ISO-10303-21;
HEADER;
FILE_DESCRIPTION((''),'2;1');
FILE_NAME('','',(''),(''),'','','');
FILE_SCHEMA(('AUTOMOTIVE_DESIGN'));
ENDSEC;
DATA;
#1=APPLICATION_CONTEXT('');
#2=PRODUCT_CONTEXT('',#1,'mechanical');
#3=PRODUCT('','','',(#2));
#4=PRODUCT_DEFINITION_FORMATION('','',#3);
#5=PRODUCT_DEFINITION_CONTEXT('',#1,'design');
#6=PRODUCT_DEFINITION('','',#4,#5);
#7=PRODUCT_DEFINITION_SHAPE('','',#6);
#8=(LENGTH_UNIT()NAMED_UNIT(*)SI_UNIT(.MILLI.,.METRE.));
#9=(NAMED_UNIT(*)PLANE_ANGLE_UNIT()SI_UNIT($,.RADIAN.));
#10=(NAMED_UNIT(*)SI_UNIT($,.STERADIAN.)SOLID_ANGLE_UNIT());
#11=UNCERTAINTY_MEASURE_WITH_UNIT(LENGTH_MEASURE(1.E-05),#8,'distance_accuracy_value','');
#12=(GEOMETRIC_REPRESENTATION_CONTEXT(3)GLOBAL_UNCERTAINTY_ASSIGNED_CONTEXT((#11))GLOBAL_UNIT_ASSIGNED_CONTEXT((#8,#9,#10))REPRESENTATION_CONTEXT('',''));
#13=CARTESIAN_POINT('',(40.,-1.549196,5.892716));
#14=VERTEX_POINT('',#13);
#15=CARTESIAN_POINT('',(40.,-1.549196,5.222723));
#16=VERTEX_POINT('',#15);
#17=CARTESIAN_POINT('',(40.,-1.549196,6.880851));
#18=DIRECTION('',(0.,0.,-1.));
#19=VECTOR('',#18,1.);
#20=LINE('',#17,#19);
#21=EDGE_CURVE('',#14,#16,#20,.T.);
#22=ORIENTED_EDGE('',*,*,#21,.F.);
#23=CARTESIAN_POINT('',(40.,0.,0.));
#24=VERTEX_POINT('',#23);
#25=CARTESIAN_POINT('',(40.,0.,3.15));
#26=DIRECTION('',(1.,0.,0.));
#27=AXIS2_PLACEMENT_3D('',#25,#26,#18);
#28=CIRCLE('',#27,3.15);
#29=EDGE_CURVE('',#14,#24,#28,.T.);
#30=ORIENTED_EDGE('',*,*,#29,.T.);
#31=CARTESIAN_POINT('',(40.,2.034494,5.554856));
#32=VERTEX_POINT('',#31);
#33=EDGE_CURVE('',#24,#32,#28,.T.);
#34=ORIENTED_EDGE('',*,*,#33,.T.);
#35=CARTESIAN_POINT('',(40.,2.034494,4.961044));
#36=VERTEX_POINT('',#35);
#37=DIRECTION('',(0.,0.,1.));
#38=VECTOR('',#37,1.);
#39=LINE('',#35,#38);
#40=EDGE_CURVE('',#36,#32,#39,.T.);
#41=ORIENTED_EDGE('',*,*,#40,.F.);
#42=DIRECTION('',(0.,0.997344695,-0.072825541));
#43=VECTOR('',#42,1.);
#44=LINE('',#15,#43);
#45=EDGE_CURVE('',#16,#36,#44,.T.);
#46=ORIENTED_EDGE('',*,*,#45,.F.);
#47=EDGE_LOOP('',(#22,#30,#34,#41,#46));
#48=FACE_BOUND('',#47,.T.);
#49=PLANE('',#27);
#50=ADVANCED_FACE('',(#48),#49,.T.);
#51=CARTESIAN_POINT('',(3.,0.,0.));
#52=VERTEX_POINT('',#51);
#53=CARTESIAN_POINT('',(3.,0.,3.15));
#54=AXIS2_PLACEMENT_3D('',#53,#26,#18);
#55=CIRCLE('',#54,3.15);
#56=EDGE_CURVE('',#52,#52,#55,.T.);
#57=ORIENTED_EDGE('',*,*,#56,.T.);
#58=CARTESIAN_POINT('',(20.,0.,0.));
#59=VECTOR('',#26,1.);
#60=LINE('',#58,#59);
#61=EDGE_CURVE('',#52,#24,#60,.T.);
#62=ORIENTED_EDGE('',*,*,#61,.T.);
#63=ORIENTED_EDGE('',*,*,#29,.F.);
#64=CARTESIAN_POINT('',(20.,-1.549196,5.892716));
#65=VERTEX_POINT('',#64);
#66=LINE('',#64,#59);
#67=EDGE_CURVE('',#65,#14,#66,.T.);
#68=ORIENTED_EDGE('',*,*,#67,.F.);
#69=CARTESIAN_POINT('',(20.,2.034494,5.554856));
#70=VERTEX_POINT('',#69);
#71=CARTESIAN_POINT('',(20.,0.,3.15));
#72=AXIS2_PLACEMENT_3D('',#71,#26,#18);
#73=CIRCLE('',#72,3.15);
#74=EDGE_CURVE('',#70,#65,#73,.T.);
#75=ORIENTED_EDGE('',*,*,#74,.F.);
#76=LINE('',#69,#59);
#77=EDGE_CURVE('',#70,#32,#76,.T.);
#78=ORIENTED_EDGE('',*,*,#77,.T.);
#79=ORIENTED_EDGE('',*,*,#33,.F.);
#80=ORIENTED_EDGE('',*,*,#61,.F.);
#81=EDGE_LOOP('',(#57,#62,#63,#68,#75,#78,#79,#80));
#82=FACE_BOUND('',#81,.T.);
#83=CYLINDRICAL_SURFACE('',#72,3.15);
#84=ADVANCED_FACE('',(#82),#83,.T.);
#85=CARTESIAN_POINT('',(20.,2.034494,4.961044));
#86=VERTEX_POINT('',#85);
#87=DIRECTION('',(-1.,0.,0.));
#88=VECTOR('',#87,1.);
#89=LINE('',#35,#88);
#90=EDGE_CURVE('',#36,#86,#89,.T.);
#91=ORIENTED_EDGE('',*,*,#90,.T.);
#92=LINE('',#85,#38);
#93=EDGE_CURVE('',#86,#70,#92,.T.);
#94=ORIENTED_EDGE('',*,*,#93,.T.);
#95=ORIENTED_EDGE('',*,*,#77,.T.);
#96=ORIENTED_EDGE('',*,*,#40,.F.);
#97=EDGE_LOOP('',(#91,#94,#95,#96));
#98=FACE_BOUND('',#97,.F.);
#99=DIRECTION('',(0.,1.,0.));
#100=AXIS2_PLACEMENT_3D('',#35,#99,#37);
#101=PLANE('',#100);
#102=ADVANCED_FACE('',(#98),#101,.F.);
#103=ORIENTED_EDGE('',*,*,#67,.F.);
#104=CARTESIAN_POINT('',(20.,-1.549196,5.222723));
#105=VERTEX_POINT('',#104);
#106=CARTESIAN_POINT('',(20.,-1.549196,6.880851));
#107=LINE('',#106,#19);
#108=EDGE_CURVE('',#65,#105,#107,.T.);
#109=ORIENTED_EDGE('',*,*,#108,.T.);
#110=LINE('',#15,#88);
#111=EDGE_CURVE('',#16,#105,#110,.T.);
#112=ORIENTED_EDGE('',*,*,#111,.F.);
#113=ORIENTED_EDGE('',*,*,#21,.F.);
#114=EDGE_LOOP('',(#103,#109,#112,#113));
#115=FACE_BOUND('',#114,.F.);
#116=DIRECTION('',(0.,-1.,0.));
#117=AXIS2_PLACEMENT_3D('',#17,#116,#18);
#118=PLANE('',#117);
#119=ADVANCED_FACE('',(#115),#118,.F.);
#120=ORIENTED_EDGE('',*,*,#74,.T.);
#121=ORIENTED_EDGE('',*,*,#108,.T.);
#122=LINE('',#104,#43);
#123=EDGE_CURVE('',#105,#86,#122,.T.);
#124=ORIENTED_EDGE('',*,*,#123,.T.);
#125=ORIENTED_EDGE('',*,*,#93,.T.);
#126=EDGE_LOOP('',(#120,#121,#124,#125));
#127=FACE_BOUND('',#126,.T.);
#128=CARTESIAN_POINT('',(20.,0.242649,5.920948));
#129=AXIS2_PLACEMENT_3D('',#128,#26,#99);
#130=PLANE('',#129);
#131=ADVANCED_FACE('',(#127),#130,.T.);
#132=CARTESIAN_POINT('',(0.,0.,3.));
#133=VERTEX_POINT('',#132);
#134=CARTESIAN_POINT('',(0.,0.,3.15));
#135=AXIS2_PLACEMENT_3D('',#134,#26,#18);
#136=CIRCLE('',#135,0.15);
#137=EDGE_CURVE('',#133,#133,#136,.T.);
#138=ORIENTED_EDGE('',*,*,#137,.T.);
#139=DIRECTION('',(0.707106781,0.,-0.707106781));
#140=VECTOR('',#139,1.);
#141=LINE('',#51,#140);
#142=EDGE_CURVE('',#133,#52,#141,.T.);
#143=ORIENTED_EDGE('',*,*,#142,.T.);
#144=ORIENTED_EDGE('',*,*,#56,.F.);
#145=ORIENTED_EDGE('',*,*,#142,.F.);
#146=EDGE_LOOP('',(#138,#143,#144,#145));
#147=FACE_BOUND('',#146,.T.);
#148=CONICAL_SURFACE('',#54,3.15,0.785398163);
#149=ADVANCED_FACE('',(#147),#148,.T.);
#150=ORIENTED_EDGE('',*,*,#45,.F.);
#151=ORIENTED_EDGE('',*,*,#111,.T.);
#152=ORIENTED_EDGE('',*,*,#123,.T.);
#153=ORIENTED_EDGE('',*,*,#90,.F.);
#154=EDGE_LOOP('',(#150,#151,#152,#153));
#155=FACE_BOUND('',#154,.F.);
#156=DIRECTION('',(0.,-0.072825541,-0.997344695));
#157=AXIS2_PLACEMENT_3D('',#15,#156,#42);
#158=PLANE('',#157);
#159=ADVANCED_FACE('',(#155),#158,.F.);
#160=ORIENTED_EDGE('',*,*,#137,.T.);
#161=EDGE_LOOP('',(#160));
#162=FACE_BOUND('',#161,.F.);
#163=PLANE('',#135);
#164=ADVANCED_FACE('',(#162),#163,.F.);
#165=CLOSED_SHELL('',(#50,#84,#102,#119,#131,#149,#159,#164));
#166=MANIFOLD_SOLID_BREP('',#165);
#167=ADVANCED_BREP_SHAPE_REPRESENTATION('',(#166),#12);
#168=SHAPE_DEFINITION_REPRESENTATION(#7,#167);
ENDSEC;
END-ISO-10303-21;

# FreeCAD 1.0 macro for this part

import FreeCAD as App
import Part
import Sketcher


def edges_at(feature, points):
    """Names of the edges that pass closest to the given points."""
    edges = feature.Shape.Edges
    near = lambda p: min(range(len(edges)), key=lambda i: edges[i].distToShape(Part.Vertex(*p))[0])
    return sorted({f"Edge{near(p) + 1}" for p in points})


def add_polygon(sketch, points):
    """Adds a closed chain of lines whose ends are joined by coincident constraints."""
    first, n = sketch.GeometryCount, len(points)
    for a, b in zip(points, points[1:] + points[:1]):
        sketch.addGeometry(Part.LineSegment(App.Vector(*a, 0), App.Vector(*b, 0)), False)
    for i in range(n):
        sketch.addConstraint(Sketcher.Constraint("Coincident", first + i, 2, first + (i + 1) % n, 1))

doc = App.newDocument("Part")
body = doc.addObject("PartDesign::Body", "Body")

# Sketch on XZ plane
sketch1 = body.newObject("Sketcher::SketchObject", "Sketch")
sketch1.AttachmentSupport = (doc.getObject("XZ_Plane"), [""])
sketch1.MapMode = "FlatFace"
add_polygon(sketch1, [(0, 3.1), (0, 0), (40, 0), (40, 3.1)])  # lines 0-3
sketch1.addGeometry(Part.LineSegment(App.Vector(0, 3.1, 0), App.Vector(40, 3.1, 0)), True)  # axis
sketch1.addConstraint([
    Sketcher.Constraint("Vertical", 0),
    Sketcher.Constraint("Horizontal", 1),
    Sketcher.Constraint("Vertical", 2),
    Sketcher.Constraint("Horizontal", 3),
    Sketcher.Constraint("Horizontal", 4),
    Sketcher.Constraint("Coincident", 0, 2, -1, 1),
    Sketcher.Constraint("Coincident", 4, 1, 3, 2),
    Sketcher.Constraint("Vertical", 1, 2, 4, 2),
    Sketcher.Constraint("DistanceX", 1, 1, 1, 2, 40.0),
    Sketcher.Constraint("DistanceY", 0, 2, 0, 1, 3.15),
])
revolution = body.newObject("PartDesign::Revolution", "Revolution")
revolution.Profile = sketch1
revolution.ReferenceAxis = (sketch1, ["Axis0"])
revolution.Angle = 360
doc.recompute()

chamfer = body.newObject("PartDesign::Chamfer", "Chamfer")
chamfer.Base = (revolution, edges_at(revolution, [(0, 0, 6.3)]))
chamfer.Size = 3

# Sketch on YZ plane
sketch2 = body.newObject("Sketcher::SketchObject", "Sketch001")
sketch2.AttachmentSupport = (doc.getObject("YZ_Plane"), [""])
sketch2.MapMode = "FlatFace"
sketch2.AttachmentOffset = App.Placement(App.Vector(0, 0, 40), App.Rotation())
add_polygon(sketch2, [(2, 6.6), (-1.5, 6.9), (-1.5, 5.2), (2, 5)])  # lines 0-3
sketch2.addConstraint([
    Sketcher.Constraint("Vertical", 1),
    Sketcher.Constraint("Vertical", 3),
    Sketcher.Constraint("Parallel", 0, 2),
    Sketcher.Constraint("DistanceY", 3, 1, 3, 2, 1.658129),
    Sketcher.Constraint("Distance", 0, 3.593231),
    Sketcher.Constraint("DistanceY", -1, 1, 0, 2, 6.880851),
    Sketcher.Constraint("DistanceX", 1, 2, 2, 2, 3.58369),
    Sketcher.Constraint("DistanceX", 0, 2, -1, 1, 1.549196),
])
pocket1 = body.newObject("PartDesign::Pocket", "Pocket")
pocket1.Profile = sketch2
pocket1.Length = 20

doc.recompute()
